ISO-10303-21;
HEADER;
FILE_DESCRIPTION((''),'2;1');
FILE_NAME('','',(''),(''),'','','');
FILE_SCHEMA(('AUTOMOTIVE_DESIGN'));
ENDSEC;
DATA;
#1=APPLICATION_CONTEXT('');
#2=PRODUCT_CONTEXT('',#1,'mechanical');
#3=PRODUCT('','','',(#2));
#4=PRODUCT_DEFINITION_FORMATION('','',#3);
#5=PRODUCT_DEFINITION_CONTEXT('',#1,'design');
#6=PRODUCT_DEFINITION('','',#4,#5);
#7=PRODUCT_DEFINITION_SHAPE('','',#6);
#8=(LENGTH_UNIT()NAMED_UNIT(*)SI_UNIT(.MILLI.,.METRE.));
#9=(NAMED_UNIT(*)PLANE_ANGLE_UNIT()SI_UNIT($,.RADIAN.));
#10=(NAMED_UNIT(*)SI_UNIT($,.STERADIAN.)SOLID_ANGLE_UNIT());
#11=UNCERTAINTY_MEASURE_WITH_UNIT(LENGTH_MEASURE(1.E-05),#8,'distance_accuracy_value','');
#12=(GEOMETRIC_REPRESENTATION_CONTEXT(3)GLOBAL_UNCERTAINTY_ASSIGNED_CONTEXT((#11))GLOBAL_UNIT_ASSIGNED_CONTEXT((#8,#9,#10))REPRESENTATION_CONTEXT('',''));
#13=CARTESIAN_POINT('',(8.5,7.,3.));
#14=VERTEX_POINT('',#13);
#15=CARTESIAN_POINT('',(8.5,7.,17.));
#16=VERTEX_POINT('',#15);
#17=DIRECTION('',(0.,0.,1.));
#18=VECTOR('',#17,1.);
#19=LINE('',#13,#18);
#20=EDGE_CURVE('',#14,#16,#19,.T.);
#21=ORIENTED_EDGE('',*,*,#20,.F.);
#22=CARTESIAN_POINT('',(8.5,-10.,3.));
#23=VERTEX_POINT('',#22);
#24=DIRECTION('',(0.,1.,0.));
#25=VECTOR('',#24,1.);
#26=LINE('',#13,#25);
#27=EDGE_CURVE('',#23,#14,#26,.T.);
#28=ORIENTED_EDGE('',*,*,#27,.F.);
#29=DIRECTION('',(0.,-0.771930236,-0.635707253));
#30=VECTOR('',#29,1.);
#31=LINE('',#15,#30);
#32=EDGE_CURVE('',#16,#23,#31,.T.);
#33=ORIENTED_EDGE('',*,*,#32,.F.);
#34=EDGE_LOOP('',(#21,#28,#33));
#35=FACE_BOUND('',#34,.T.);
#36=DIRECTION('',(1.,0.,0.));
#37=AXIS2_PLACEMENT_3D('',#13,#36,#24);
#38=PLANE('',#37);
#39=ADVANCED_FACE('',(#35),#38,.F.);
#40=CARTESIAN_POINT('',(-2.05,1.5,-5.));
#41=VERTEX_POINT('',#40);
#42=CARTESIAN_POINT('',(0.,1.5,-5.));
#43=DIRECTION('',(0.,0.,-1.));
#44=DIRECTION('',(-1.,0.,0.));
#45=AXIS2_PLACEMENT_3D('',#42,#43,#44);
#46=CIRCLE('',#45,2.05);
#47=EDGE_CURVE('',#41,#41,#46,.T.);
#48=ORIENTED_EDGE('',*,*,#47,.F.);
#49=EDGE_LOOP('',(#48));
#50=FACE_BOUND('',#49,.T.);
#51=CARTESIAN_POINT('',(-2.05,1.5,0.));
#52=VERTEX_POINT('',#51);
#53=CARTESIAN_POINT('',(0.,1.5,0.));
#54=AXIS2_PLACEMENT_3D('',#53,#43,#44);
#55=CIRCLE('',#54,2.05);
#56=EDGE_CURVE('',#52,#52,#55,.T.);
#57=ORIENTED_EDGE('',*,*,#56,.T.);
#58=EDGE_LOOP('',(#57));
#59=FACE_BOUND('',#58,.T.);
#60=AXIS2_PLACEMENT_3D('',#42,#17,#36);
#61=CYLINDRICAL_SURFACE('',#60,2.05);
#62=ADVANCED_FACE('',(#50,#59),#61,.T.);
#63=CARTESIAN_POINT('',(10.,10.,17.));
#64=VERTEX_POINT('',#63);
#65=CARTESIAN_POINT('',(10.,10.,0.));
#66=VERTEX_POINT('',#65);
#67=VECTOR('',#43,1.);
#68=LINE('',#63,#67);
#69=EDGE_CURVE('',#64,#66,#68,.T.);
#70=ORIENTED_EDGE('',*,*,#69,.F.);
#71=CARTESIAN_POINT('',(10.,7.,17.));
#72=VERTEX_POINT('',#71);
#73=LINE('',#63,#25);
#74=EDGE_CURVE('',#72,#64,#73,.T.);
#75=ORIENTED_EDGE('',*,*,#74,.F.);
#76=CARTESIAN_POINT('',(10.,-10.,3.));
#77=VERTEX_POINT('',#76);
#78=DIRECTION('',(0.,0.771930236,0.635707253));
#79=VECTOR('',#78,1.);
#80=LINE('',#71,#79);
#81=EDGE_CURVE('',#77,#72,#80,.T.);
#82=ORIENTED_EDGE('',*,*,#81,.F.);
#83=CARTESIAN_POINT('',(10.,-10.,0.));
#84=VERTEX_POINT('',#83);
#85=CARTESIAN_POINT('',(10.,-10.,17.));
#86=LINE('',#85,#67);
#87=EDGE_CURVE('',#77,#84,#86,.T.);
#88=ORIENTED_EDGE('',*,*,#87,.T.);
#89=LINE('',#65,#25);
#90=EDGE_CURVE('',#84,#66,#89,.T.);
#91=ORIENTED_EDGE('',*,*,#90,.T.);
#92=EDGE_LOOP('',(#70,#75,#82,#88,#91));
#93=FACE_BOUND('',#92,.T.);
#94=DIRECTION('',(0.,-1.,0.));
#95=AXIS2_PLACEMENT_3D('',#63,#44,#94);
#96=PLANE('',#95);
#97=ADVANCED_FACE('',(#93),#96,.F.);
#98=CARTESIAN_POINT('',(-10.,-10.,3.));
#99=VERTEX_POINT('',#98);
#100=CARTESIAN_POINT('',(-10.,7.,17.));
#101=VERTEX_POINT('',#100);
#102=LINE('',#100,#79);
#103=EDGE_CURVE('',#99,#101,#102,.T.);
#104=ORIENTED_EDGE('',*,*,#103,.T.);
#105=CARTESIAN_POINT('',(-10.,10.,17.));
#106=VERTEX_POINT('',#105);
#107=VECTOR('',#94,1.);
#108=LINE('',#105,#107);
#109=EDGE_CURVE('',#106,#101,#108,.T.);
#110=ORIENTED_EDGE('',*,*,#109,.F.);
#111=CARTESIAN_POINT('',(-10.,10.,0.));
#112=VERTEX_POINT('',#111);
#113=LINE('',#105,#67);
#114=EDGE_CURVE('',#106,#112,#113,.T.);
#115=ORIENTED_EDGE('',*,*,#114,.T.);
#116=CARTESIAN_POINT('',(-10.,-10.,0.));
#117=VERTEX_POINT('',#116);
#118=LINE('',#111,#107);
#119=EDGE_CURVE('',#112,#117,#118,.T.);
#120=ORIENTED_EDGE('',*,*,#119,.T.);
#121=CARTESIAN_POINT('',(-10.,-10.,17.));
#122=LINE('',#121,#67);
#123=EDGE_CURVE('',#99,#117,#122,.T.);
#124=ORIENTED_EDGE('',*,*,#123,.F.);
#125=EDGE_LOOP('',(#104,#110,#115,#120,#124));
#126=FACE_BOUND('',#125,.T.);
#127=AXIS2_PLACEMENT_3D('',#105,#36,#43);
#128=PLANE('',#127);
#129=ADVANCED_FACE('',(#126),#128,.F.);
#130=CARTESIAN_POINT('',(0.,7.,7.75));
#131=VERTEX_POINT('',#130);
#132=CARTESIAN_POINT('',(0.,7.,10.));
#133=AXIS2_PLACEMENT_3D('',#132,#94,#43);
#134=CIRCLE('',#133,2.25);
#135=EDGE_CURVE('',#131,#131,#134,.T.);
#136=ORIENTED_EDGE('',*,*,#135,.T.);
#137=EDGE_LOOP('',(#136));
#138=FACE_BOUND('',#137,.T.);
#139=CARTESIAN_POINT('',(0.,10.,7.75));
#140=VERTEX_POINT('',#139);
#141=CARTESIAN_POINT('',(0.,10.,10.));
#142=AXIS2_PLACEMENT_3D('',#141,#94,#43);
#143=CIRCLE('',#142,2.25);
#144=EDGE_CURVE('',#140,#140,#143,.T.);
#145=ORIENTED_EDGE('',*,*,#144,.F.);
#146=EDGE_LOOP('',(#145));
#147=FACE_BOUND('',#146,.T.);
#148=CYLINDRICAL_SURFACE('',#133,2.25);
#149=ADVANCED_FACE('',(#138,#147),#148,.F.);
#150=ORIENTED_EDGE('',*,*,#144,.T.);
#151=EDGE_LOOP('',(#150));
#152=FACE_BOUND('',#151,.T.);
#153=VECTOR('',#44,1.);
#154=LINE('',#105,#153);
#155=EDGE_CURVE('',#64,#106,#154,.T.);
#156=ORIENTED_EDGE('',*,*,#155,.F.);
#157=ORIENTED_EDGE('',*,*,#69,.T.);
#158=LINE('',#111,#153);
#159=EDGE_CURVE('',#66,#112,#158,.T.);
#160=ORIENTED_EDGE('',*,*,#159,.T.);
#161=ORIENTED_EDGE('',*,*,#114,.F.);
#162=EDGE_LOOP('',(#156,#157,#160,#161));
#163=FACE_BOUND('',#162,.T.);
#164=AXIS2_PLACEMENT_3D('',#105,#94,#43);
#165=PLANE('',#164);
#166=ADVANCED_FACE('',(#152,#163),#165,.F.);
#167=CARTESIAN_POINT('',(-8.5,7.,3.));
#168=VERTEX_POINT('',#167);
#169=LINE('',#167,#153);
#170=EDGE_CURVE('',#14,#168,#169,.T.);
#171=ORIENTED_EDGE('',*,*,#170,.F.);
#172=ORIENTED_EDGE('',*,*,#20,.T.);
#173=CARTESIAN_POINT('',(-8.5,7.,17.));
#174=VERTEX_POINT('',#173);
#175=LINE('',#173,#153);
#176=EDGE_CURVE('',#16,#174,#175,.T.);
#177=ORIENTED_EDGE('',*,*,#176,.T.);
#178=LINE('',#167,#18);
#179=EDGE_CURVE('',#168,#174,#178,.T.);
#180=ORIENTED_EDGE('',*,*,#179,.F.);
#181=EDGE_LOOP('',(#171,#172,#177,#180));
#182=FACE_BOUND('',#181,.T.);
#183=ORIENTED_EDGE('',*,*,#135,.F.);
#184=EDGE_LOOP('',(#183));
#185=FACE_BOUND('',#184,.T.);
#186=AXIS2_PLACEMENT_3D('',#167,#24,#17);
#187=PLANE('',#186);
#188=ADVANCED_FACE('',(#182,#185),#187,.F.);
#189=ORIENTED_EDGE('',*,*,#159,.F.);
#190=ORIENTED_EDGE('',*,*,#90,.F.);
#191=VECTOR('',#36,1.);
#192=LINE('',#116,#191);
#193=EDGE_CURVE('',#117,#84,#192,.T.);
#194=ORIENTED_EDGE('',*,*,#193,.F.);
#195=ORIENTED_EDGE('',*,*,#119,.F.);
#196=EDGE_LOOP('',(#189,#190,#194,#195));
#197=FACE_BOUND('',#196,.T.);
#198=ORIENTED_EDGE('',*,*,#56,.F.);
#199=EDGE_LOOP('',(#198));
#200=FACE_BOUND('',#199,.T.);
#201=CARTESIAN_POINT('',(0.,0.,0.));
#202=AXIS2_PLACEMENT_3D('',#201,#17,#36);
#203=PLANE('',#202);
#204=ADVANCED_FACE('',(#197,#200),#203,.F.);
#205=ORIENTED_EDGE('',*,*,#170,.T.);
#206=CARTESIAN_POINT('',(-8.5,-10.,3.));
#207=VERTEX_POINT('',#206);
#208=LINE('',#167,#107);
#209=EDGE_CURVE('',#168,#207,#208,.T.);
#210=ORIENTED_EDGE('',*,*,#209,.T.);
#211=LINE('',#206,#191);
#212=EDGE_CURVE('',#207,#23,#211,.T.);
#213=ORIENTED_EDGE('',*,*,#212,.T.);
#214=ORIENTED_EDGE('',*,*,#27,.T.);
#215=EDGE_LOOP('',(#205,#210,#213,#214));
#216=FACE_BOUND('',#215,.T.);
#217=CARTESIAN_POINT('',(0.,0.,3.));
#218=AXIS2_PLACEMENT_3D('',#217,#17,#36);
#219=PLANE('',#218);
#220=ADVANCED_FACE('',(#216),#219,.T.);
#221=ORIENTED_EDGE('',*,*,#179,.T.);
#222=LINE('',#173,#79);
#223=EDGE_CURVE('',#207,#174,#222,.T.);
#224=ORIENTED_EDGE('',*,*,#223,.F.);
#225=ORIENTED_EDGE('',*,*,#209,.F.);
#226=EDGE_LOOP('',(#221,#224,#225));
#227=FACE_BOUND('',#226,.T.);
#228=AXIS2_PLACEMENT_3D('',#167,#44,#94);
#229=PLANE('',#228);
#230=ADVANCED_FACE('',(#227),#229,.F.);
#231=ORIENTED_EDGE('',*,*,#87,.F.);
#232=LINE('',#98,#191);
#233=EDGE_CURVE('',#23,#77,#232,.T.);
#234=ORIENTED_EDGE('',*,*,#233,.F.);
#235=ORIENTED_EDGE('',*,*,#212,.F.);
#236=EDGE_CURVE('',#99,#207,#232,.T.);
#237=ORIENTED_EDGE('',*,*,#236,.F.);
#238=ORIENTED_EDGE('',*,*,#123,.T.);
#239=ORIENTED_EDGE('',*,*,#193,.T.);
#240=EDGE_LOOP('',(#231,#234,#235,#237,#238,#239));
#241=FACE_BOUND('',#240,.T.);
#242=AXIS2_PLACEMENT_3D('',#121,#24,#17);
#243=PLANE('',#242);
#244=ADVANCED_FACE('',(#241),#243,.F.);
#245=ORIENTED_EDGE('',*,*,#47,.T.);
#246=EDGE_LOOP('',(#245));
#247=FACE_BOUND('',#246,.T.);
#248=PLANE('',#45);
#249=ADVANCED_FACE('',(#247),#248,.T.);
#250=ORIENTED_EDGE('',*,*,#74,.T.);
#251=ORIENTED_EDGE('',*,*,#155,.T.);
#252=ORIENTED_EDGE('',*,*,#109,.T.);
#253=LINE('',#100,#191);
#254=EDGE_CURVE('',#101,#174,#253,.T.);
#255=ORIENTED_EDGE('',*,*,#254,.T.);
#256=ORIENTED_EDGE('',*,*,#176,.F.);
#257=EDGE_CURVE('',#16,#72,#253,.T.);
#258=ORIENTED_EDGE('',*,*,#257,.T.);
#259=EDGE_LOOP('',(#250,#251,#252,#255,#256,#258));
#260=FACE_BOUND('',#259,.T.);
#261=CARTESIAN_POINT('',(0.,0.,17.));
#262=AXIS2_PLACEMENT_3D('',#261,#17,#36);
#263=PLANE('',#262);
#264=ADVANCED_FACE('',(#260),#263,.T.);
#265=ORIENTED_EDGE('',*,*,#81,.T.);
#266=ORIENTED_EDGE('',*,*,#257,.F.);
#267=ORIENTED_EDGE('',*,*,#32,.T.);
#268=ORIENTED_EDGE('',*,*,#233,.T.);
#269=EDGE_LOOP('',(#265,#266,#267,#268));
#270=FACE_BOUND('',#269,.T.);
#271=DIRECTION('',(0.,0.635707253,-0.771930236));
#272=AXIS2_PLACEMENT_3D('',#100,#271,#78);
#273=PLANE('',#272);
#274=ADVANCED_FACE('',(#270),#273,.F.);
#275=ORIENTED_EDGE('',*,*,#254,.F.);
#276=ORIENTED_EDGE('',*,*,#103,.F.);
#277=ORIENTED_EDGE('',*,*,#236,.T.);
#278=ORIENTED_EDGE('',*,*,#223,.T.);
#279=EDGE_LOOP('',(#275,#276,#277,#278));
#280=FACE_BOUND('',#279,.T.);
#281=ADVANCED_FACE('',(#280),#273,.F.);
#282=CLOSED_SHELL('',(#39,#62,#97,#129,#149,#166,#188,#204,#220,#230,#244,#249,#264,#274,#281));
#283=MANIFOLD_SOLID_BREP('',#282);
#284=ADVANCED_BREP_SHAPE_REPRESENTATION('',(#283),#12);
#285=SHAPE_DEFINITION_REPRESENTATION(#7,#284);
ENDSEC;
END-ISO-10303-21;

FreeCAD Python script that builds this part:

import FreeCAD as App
import Part
import Sketcher
from FreeCAD import Vector

doc = App.newDocument("Part")
body = doc.addObject("PartDesign::Body", "Body")

# Sketch on XY plane
sketch1 = doc.addObject("Sketcher::SketchObject", "Sketch")
body.addObject(sketch1)
sketch1.AttachmentSupport = (doc.XY_Plane, [""])
sketch1.MapMode = "FlatFace"
sketch1.addGeometry(Part.LineSegment(Vector(-10, 10, 0), Vector(-10, -10, 0)), False)
sketch1.addGeometry(Part.LineSegment(Vector(-10, -10, 0), Vector(10, -10, 0)), False)
sketch1.addGeometry(Part.LineSegment(Vector(10, -10, 0), Vector(10, 10, 0)), False)
sketch1.addGeometry(Part.LineSegment(Vector(10, 10, 0), Vector(-10, 10, 0)), False)
sketch1.addConstraint(Sketcher.Constraint("Coincident", 0, 2, 1, 1))
sketch1.addConstraint(Sketcher.Constraint("Coincident", 1, 2, 2, 1))
sketch1.addConstraint(Sketcher.Constraint("Coincident", 2, 2, 3, 1))
sketch1.addConstraint(Sketcher.Constraint("Coincident", 3, 2, 0, 1))
sketch1.addConstraint(Sketcher.Constraint("Vertical", 0))
sketch1.addConstraint(Sketcher.Constraint("Horizontal", 1))
sketch1.addConstraint(Sketcher.Constraint("Vertical", 2))
sketch1.addConstraint(Sketcher.Constraint("Horizontal", 3))
sketch1.addConstraint(Sketcher.Constraint("Symmetric", 0, 2, 2, 2, -1, 1))
sketch1.addConstraint(Sketcher.Constraint("Equal", 3, 0))
sketch1.addConstraint(Sketcher.Constraint("DistanceX", 1, 1, 1, 2, 20.0))
pad1 = doc.addObject("PartDesign::Pad", "Pad")
body.addObject(pad1)
pad1.Profile = sketch1
pad1.Length = 17

# Sketch on YZ plane
sketch2 = doc.addObject("Sketcher::SketchObject", "Sketch001")
body.addObject(sketch2)
sketch2.AttachmentSupport = (doc.YZ_Plane, [""])
sketch2.MapMode = "FlatFace"
sketch2.AttachmentOffset = App.Placement(Vector(0, 0, 10), App.Rotation())
sketch2.addGeometry(Part.LineSegment(Vector(-10, 3, 0), Vector(7, 17, 0)), False)
sketch2.addGeometry(Part.LineSegment(Vector(7, 17, 0), Vector(-10, 17, 0)), False)
sketch2.addGeometry(Part.LineSegment(Vector(-10, 17, 0), Vector(-10, 3, 0)), False)
sketch2.addConstraint(Sketcher.Constraint("Coincident", 0, 2, 1, 1))
sketch2.addConstraint(Sketcher.Constraint("Coincident", 1, 2, 2, 1))
sketch2.addConstraint(Sketcher.Constraint("Coincident", 2, 2, 0, 1))
sketch2.addConstraint(Sketcher.Constraint("Horizontal", 1))
sketch2.addConstraint(Sketcher.Constraint("Vertical", 2))
sketch2.addConstraint(Sketcher.Constraint("DistanceX", 1, 2, 1, 1, 17.0))
sketch2.addConstraint(Sketcher.Constraint("DistanceY", 2, 2, 2, 1, 14.0))
sketch2.addConstraint(Sketcher.Constraint("DistanceX", -1, 1, 0, 2, 7.0))
sketch2.addConstraint(Sketcher.Constraint("DistanceY", -1, 1, 0, 2, 17.0))
pocket1 = doc.addObject("PartDesign::Pocket", "Pocket")
body.addObject(pocket1)
pocket1.Profile = sketch2
pocket1.Length = 20

# Sketch on XY plane
sketch3 = doc.addObject("Sketcher::SketchObject", "Sketch002")
body.addObject(sketch3)
sketch3.AttachmentSupport = (doc.XY_Plane, [""])
sketch3.MapMode = "FlatFace"
sketch3.AttachmentOffset = App.Placement(Vector(0, 0, 17), App.Rotation())
sketch3.addGeometry(Part.LineSegment(Vector(-8, 7, 0), Vector(-8, -10, 0)), False)
sketch3.addGeometry(Part.LineSegment(Vector(-8, -10, 0), Vector(8, -10, 0)), False)
sketch3.addGeometry(Part.LineSegment(Vector(8, -10, 0), Vector(8, 7, 0)), False)
sketch3.addGeometry(Part.LineSegment(Vector(8, 7, 0), Vector(-8, 7, 0)), False)
sketch3.addConstraint(Sketcher.Constraint("Coincident", 0, 2, 1, 1))
sketch3.addConstraint(Sketcher.Constraint("Coincident", 1, 2, 2, 1))
sketch3.addConstraint(Sketcher.Constraint("Coincident", 2, 2, 3, 1))
sketch3.addConstraint(Sketcher.Constraint("Coincident", 3, 2, 0, 1))
sketch3.addConstraint(Sketcher.Constraint("Vertical", 0))
sketch3.addConstraint(Sketcher.Constraint("Horizontal", 1))
sketch3.addConstraint(Sketcher.Constraint("Vertical", 2))
sketch3.addConstraint(Sketcher.Constraint("Horizontal", 3))
sketch3.addConstraint(Sketcher.Constraint("Equal", 3, 0))
sketch3.addConstraint(Sketcher.Constraint("DistanceX", 1, 1, 1, 2, 17.0))
sketch3.addConstraint(Sketcher.Constraint("DistanceY", 0, 2, -1, 1, 10.0))
sketch3.addConstraint(Sketcher.Constraint("DistanceX", 0, 2, -1, 1, 8.5))
pocket2 = doc.addObject("PartDesign::Pocket", "Pocket001")
body.addObject(pocket2)
pocket2.Profile = sketch3
pocket2.Length = 14

# Sketch on XZ plane
sketch4 = doc.addObject("Sketcher::SketchObject", "Sketch003")
body.addObject(sketch4)
sketch4.AttachmentSupport = (doc.XZ_Plane, [""])
sketch4.MapMode = "FlatFace"
sketch4.AttachmentOffset = App.Placement(Vector(0, 0, -7), App.Rotation())
sketch4.addGeometry(Part.Circle(Vector(0, 10, 0), Vector(0, 0, 1), 2.2), False)
sketch4.addConstraint(Sketcher.Constraint("PointOnObject", 0, 3, -2))
sketch4.addConstraint(Sketcher.Constraint("Diameter", 0, 4.5))
sketch4.addConstraint(Sketcher.Constraint("DistanceY", -1, 1, 0, 3, 10.0))
doc.recompute()
hole = doc.addObject("PartDesign::Hole", "Hole")
body.addObject(hole)
hole.Profile = sketch4
hole.ThreadType = "None"
hole.Diameter = 4.5
hole.DepthType = "ThroughAll"

# Sketch on XY plane
sketch5 = doc.addObject("Sketcher::SketchObject", "Sketch004")
body.addObject(sketch5)
sketch5.AttachmentSupport = (doc.XY_Plane, [""])
sketch5.MapMode = "FlatFace"
sketch5.addGeometry(Part.Circle(Vector(0, 1.5, 0), Vector(0, 0, 1), 2), False)
sketch5.addConstraint(Sketcher.Constraint("PointOnObject", 0, 3, -2))
sketch5.addConstraint(Sketcher.Constraint("Diameter", 0, 4.1))
sketch5.addConstraint(Sketcher.Constraint("DistanceY", -1, 1, 0, 3, 1.5))
pad2 = doc.addObject("PartDesign::Pad", "Pad001")
body.addObject(pad2)
pad2.Profile = sketch5
pad2.Length = 5
pad2.Reversed = True

doc.recompute()
